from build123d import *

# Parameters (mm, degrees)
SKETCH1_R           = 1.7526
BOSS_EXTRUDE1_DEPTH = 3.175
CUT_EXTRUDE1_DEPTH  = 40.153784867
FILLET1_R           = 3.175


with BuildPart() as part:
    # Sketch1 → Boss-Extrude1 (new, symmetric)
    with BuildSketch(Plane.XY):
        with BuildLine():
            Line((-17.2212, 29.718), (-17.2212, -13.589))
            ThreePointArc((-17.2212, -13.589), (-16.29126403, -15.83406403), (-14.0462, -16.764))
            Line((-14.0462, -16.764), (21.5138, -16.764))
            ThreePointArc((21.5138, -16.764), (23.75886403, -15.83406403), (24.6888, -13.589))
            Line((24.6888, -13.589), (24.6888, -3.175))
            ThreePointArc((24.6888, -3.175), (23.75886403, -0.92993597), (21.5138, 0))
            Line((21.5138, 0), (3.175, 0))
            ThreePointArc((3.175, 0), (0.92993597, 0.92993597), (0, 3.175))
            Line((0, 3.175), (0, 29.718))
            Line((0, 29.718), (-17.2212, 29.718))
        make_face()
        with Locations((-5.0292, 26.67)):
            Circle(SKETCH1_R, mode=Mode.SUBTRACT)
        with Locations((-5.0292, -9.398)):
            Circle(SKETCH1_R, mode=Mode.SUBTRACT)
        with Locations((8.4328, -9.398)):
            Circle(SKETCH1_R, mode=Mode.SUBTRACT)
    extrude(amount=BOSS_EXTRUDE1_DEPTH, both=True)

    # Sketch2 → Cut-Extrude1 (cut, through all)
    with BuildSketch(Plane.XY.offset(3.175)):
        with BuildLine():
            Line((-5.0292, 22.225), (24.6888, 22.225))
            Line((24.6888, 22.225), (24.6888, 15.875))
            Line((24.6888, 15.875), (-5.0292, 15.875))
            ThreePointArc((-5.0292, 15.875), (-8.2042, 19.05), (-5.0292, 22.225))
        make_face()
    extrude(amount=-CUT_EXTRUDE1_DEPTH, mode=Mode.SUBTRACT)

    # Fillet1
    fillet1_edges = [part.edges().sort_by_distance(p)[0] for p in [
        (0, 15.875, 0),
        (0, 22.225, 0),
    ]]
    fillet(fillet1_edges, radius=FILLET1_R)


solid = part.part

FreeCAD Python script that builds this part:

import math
import FreeCAD as App
import Part
import Sketcher

V = App.Vector
Q = App.Units.Quantity


def edges_at(feature, points):
    """Names of the edges that pass closest to the given points."""
    edges = feature.Shape.Edges
    near = lambda p: min(range(len(edges)), key=lambda i: edges[i].distToShape(Part.Vertex(*p))[0])
    return sorted({f"Edge{near(p) + 1}" for p in points})

doc = App.newDocument("Part")
body = doc.addObject("PartDesign::Body", "Body")

sketch1 = body.newObject("Sketcher::SketchObject", "Sketch")
sketch1.AttachmentSupport = (doc.getObject("XY_Plane"), [""])
sketch1.MapMode = "FlatFace"
sketch1.addGeometry(Part.LineSegment(V(-17.2212, 29.718, 0), V(-17.2212, -13.589, 0)), False)
sketch1.addGeometry(Part.ArcOfCircle(Part.Circle(V(-14.0462, -13.589, 0), V(0, 0, 1), 3.175), math.radians(-180), math.radians(-90)), False)
sketch1.addGeometry(Part.LineSegment(V(-14.0462, -16.764, 0), V(21.5138, -16.764, 0)), False)
sketch1.addGeometry(Part.ArcOfCircle(Part.Circle(V(21.5138, -13.589, 0), V(0, 0, 1), 3.175), math.radians(-90), math.radians(0)), False)
sketch1.addGeometry(Part.LineSegment(V(24.6888, -13.589, 0), V(24.6888, -3.175, 0)), False)
sketch1.addGeometry(Part.ArcOfCircle(Part.Circle(V(21.5138, -3.175, 0), V(0, 0, 1), 3.175), math.radians(0), math.radians(90)), False)
sketch1.addGeometry(Part.LineSegment(V(21.5138, 0, 0), V(3.175, 0, 0)), False)
sketch1.addGeometry(Part.ArcOfCircle(Part.Circle(V(3.175, 3.175, 0), V(0, 0, 1), 3.175), math.radians(-180), math.radians(-90)), False)
sketch1.addGeometry(Part.LineSegment(V(0, 3.175, 0), V(0, 29.718, 0)), False)
sketch1.addGeometry(Part.LineSegment(V(0, 29.718, 0), V(-17.2212, 29.718, 0)), False)
sketch1.addGeometry(Part.Circle(V(-5.0292, -9.398, 0), V(0, 0, 1), 1.7526), False)
sketch1.addGeometry(Part.Circle(V(8.4328, -9.398, 0), V(0, 0, 1), 1.7526), False)
sketch1.addGeometry(Part.Circle(V(-5.0292, 26.67, 0), V(0, 0, 1), 1.7526), False)
sketch1.addConstraint(Sketcher.Constraint("Tangent", 0, 2, 1, 1))
sketch1.addConstraint(Sketcher.Constraint("Tangent", 1, 2, 2, 1))
sketch1.addConstraint(Sketcher.Constraint("Tangent", 2, 2, 3, 1))
sketch1.addConstraint(Sketcher.Constraint("Tangent", 3, 2, 4, 1))
sketch1.addConstraint(Sketcher.Constraint("Tangent", 4, 2, 5, 1))
sketch1.addConstraint(Sketcher.Constraint("Tangent", 5, 2, 6, 1))
sketch1.addConstraint(Sketcher.Constraint("Tangent", 6, 2, 7, 2))
sketch1.addConstraint(Sketcher.Constraint("Tangent", 7, 1, 8, 1))
sketch1.addConstraint(Sketcher.Constraint("Coincident", 8, 2, 9, 1))
sketch1.addConstraint(Sketcher.Constraint("Coincident", 9, 2, 0, 1))
sketch1.addConstraint(Sketcher.Constraint("Vertical", 0))
sketch1.addConstraint(Sketcher.Constraint("Horizontal", 2))
sketch1.addConstraint(Sketcher.Constraint("Vertical", 4))
sketch1.addConstraint(Sketcher.Constraint("Horizontal", 6))
sketch1.addConstraint(Sketcher.Constraint("Vertical", 8))
sketch1.addConstraint(Sketcher.Constraint("Horizontal", 9))
sketch1.addConstraint(Sketcher.Constraint("Equal", 1, 3))
sketch1.addConstraint(Sketcher.Constraint("Equal", 3, 5))
sketch1.addConstraint(Sketcher.Constraint("Equal", 5, 7))
sketch1.addConstraint(Sketcher.Constraint("Equal", 10, 11))
sketch1.addConstraint(Sketcher.Constraint("Equal", 11, 12))
sketch1.addConstraint(Sketcher.Constraint("PointOnObject", 5, 2, -1))
sketch1.addConstraint(Sketcher.Constraint("PointOnObject", 7, 1, -2))
sketch1.addConstraint(Sketcher.Constraint("Horizontal", 10, 3, 11, 3))
sketch1.addConstraint(Sketcher.Constraint("Vertical", 10, 3, 12, 3))
sketch1.addConstraint(Sketcher.Constraint("Diameter", 10, Q("0.138 in")))
sketch1.addConstraint(Sketcher.Constraint("DistanceX", 2, 1, 2, 2, Q("1.4 in")))
sketch1.addConstraint(Sketcher.Constraint("Radius", 1, Q("0.125 in")))
sketch1.addConstraint(Sketcher.Constraint("DistanceY", 4, 1, 4, 2, Q("0.41 in")))
sketch1.addConstraint(Sketcher.Constraint("DistanceX", 6, 2, 6, 1, Q("0.722 in")))
sketch1.addConstraint(Sketcher.Constraint("DistanceY", 0, 2, 0, 1, Q("1.705 in")))
sketch1.addConstraint(Sketcher.Constraint("DistanceY", 10, 3, -1, 1, Q("0.37 in")))
sketch1.addConstraint(Sketcher.Constraint("DistanceY", -1, 1, 12, 3, Q("1.05 in")))
sketch1.addConstraint(Sketcher.Constraint("DistanceX", 10, 3, 11, 3, Q("0.53 in")))
sketch1.addConstraint(Sketcher.Constraint("DistanceX", 0, 2, 10, 3, Q("0.48 in")))
pad1 = body.newObject("PartDesign::Pad", "Pad")
pad1.Profile = sketch1
pad1.Length = Q("0.25 in")
pad1.Midplane = True

sketch2 = body.newObject("Sketcher::SketchObject", "Sketch001")
sketch2.AttachmentSupport = (doc.getObject("XY_Plane"), [""])
sketch2.MapMode = "FlatFace"
sketch2.AttachmentOffset = App.Placement(V(0, 0, 0.125 * 25.4), App.Rotation())
sketch2.addGeometry(Part.LineSegment(V(24.6888, 22.225, 0), V(-5.0292, 22.225, 0)), False)
sketch2.addGeometry(Part.ArcOfCircle(Part.Circle(V(-5.0292, 19.05, 0), V(0, 0, 1), 3.175), math.radians(90), math.radians(270)), False)
sketch2.addGeometry(Part.LineSegment(V(-5.0292, 15.875, 0), V(24.6888, 15.875, 0)), False)
sketch2.addGeometry(Part.LineSegment(V(24.6888, 15.875, 0), V(24.6888, 22.225, 0)), False)
sketch2.addConstraint(Sketcher.Constraint("Tangent", 0, 2, 1, 1))
sketch2.addConstraint(Sketcher.Constraint("Tangent", 1, 2, 2, 1))
sketch2.addConstraint(Sketcher.Constraint("Coincident", 2, 2, 3, 1))
sketch2.addConstraint(Sketcher.Constraint("Coincident", 3, 2, 0, 1))
sketch2.addConstraint(Sketcher.Constraint("Horizontal", 0))
sketch2.addConstraint(Sketcher.Constraint("Horizontal", 2))
sketch2.addConstraint(Sketcher.Constraint("Vertical", 3))
sketch2.addConstraint(Sketcher.Constraint("Radius", 1, Q("0.125 in")))
sketch2.addConstraint(Sketcher.Constraint("DistanceX", 0, 2, 0, 1, Q("1.17 in")))
sketch2.addConstraint(Sketcher.Constraint("DistanceY", -1, 1, 1, 3, Q("0.75 in")))
sketch2.addConstraint(Sketcher.Constraint("DistanceX", 1, 3, -1, 1, Q("0.198 in")))
pocket1 = body.newObject("PartDesign::Pocket", "Pocket")
pocket1.Profile = sketch2
pocket1.Type = "ThroughAll"
doc.recompute()

fillet = body.newObject("PartDesign::Fillet", "Fillet")
fillet.Base = (pocket1, edges_at(pocket1, [(0, 15.875, 0), (0, 22.225, 0)]))
fillet.Radius = Q("0.125 in")

doc.recompute()
